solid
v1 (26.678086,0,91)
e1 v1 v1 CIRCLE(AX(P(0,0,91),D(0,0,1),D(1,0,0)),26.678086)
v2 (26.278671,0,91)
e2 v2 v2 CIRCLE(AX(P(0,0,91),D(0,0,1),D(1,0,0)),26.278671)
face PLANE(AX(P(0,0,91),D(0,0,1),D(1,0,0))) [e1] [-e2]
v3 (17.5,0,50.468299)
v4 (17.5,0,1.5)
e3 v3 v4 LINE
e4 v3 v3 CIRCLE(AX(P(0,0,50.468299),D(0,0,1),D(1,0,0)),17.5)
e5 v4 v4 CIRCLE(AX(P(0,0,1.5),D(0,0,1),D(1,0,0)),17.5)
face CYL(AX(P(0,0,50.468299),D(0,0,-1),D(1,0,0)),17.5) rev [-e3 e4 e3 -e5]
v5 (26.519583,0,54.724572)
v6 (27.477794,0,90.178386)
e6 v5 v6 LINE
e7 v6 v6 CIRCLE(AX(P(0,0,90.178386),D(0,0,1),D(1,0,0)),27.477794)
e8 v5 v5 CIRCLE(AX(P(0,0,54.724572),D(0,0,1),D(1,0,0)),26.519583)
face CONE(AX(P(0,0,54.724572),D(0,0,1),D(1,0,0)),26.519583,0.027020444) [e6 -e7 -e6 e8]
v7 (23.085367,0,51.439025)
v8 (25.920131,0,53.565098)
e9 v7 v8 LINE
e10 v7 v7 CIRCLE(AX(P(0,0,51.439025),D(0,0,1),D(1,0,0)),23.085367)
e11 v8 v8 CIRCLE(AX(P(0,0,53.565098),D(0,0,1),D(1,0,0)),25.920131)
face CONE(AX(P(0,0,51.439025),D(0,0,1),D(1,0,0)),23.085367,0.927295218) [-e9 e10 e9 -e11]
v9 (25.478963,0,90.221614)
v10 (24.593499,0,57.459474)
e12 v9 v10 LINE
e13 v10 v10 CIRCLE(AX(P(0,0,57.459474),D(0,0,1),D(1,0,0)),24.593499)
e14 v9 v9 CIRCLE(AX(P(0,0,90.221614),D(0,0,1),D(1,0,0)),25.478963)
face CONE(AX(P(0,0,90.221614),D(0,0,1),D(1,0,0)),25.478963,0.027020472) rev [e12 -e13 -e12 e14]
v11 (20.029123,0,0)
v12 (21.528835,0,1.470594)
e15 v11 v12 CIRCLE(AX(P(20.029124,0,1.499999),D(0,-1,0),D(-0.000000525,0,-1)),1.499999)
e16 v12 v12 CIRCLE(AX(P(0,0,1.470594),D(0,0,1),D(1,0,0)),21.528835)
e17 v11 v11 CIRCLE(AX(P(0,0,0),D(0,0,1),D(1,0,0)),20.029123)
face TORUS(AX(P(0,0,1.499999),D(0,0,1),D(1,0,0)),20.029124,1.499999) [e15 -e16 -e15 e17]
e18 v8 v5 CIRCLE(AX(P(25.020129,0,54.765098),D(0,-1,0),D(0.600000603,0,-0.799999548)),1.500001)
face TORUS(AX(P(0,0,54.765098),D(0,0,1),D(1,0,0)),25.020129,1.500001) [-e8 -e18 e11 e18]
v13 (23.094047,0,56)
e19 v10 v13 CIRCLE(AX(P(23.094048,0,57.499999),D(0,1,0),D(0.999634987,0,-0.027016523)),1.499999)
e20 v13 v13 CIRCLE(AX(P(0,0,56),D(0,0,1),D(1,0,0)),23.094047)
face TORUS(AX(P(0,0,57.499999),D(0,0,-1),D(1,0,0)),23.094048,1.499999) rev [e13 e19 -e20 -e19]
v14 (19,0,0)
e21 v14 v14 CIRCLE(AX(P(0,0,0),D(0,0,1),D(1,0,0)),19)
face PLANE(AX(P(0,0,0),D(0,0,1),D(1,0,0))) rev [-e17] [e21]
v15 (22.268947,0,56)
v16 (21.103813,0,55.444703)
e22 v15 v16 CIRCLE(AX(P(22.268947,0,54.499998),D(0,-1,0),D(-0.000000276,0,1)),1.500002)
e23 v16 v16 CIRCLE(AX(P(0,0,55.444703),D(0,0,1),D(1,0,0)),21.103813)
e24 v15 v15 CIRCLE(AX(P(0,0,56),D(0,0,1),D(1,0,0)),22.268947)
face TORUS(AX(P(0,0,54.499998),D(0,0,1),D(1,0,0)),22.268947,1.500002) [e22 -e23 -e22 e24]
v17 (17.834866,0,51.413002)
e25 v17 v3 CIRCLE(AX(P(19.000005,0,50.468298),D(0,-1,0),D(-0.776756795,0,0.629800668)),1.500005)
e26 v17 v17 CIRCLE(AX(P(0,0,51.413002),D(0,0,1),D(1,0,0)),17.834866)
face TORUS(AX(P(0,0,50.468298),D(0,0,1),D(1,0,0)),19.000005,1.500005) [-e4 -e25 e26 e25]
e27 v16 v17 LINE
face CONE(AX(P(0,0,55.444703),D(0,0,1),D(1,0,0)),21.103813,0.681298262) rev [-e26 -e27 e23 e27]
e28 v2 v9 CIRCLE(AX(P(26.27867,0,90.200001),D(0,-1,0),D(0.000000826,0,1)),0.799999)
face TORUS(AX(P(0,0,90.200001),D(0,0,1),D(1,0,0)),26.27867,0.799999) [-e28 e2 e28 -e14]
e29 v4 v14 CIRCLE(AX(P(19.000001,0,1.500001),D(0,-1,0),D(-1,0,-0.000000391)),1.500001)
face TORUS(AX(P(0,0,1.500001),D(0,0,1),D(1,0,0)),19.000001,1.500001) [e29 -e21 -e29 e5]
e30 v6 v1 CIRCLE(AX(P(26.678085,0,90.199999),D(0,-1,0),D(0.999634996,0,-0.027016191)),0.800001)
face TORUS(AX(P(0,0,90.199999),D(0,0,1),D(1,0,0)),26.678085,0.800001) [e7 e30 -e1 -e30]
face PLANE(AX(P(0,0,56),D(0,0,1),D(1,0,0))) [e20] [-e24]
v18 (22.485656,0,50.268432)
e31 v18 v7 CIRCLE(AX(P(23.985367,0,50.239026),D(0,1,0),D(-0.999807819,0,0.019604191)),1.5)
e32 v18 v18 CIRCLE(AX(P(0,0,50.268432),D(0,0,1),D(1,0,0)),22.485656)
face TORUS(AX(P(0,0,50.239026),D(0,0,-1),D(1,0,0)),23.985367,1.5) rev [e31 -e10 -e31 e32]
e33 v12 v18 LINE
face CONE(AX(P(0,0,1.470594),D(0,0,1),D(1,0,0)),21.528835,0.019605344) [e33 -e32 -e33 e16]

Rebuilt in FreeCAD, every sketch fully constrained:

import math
import FreeCAD as App
import Part
import Sketcher

V = App.Vector
Q = App.Units.Quantity

doc = App.newDocument("Part")
params = doc.addObject("Spreadsheet::Sheet", "Params")
for row, (alias, value) in enumerate([
    ("sketch1_radius", "0.800001 mm"),
    ("sketch1_radius2", "0.799999 mm"),
    ("sketch1_radius3", "1.499999 mm"),
    ("sketch1_radius4", "1.500002 mm"),
    ("sketch1_radius5", "1.500001 mm"),
    ("revolution_angle", "360 deg"),
], start=1):
    params.set(f"A{row}", alias)
    params.set(f"B{row}", "=" + value)
    params.setAlias(f"B{row}", alias)

body = doc.addObject("PartDesign::Body", "Body")

# Sketch on XZ plane
sketch1 = doc.addObject("Sketcher::SketchObject", "Sketch")
body.addObject(sketch1)
sketch1.AttachmentSupport = (doc.XZ_Plane, [""])
sketch1.MapMode = "FlatFace"
sketch1.addGeometry(Part.LineSegment(V(26.519583, 54.724572, 0), V(27.477794, 90.178386, 0)), False)
sketch1.addGeometry(Part.ArcOfCircle(Part.Circle(V(26.678085, 90.199999, 0), V(0, 0, 1), 0.800001), math.radians(-1.548102), math.radians(89.999927)), False)
sketch1.addGeometry(Part.LineSegment(V(26.678086, 91, 0), V(26.278671, 91, 0)), False)
sketch1.addGeometry(Part.ArcOfCircle(Part.Circle(V(26.27867, 90.200001, 0), V(0, 0, 1), 0.799999), math.radians(89.999953), math.radians(178.451868)), False)
sketch1.addGeometry(Part.LineSegment(V(25.478963, 90.221614, 0), V(24.593499, 57.459474, 0)), False)
sketch1.addGeometry(Part.ArcOfCircle(Part.Circle(V(23.094048, 57.499999, 0), V(0, 0, 1), 1.499999), math.radians(-90.000029), math.radians(-1.548121)), False)
sketch1.addGeometry(Part.LineSegment(V(23.094047, 56, 0), V(22.268947, 56, 0)), False)
sketch1.addGeometry(Part.ArcOfCircle(Part.Circle(V(22.268947, 54.499998, 0), V(0, 0, 1), 1.500002), math.radians(90.000016), math.radians(140.964452)), False)
sketch1.addGeometry(Part.LineSegment(V(21.103813, 55.444703, 0), V(17.834866, 51.413002, 0)), False)
sketch1.addGeometry(Part.ArcOfCircle(Part.Circle(V(19.000005, 50.468298, 0), V(0, 0, 1), 1.500005), math.radians(140.964582), math.radians(179.999948)), False)
sketch1.addGeometry(Part.LineSegment(V(17.5, 50.468299, 0), V(17.5, 1.5, 0)), False)
sketch1.addGeometry(Part.ArcOfCircle(Part.Circle(V(19.000001, 1.500001, 0), V(0, 0, 1), 1.500001), math.radians(-179.999978), math.radians(-90.000022)), False)
sketch1.addGeometry(Part.LineSegment(V(19, 0, 0), V(20.029123, 0, 0)), False)
sketch1.addGeometry(Part.ArcOfCircle(Part.Circle(V(20.029124, 1.499999, 0), V(0, 0, 1), 1.499999), math.radians(-90.00003), math.radians(-1.123278)), False)
sketch1.addGeometry(Part.LineSegment(V(21.528835, 1.470594, 0), V(22.485656, 50.268432, 0)), False)
sketch1.addGeometry(Part.ArcOfCircle(Part.Circle(V(23.985367, 50.239026, 0), V(0, 0, 1), 1.5), math.radians(126.869926), math.radians(178.876691)), False)
sketch1.addGeometry(Part.LineSegment(V(23.085367, 51.439025, 0), V(25.920131, 53.565098, 0)), False)
sketch1.addGeometry(Part.ArcOfCircle(Part.Circle(V(25.020129, 54.765098, 0), V(0, 0, 1), 1.500001), math.radians(-53.130059), math.radians(-1.548176)), False)
sketch1.addConstraint(Sketcher.Constraint("Coincident", 0, 2, 1, 1))
sketch1.addConstraint(Sketcher.Constraint("Coincident", 1, 2, 2, 1))
sketch1.addConstraint(Sketcher.Constraint("Coincident", 2, 2, 3, 1))
sketch1.addConstraint(Sketcher.Constraint("Coincident", 3, 2, 4, 1))
sketch1.addConstraint(Sketcher.Constraint("Coincident", 4, 2, 5, 2))
sketch1.addConstraint(Sketcher.Constraint("Coincident", 5, 1, 6, 1))
sketch1.addConstraint(Sketcher.Constraint("Coincident", 6, 2, 7, 1))
sketch1.addConstraint(Sketcher.Constraint("Coincident", 7, 2, 8, 1))
sketch1.addConstraint(Sketcher.Constraint("Coincident", 8, 2, 9, 1))
sketch1.addConstraint(Sketcher.Constraint("Coincident", 9, 2, 10, 1))
sketch1.addConstraint(Sketcher.Constraint("Coincident", 10, 2, 11, 1))
sketch1.addConstraint(Sketcher.Constraint("Coincident", 11, 2, 12, 1))
sketch1.addConstraint(Sketcher.Constraint("Coincident", 12, 2, 13, 1))
sketch1.addConstraint(Sketcher.Constraint("Coincident", 13, 2, 14, 1))
sketch1.addConstraint(Sketcher.Constraint("Coincident", 14, 2, 15, 2))
sketch1.addConstraint(Sketcher.Constraint("Coincident", 15, 1, 16, 1))
sketch1.addConstraint(Sketcher.Constraint("Coincident", 16, 2, 17, 1))
sketch1.addConstraint(Sketcher.Constraint("Coincident", 17, 2, 0, 1))
sketch1.addConstraint(Sketcher.Constraint("Horizontal", 2))
sketch1.addConstraint(Sketcher.Constraint("Horizontal", 6))
sketch1.addConstraint(Sketcher.Constraint("Vertical", 10))
sketch1.addConstraint(Sketcher.Constraint("Horizontal", 12))
sketch1.addConstraint(Sketcher.Constraint("PointOnObject", 11, 2, -1))
sketch1.addConstraint(Sketcher.Constraint("Radius", 1, Q("0.800001 mm")))
sketch1.addConstraint(Sketcher.Constraint("Radius", 3, Q("0.799999 mm")))
sketch1.addConstraint(Sketcher.Constraint("Radius", 5, Q("1.499999 mm")))
sketch1.addConstraint(Sketcher.Constraint("Radius", 7, Q("1.500002 mm")))
sketch1.addConstraint(Sketcher.Constraint("Radius", 11, Q("1.500001 mm")))
sketch1.addConstraint(Sketcher.Constraint("Radius", 13, Q("1.499999 mm")))
sketch1.addConstraint(Sketcher.Constraint("Radius", 15, Q("1.5 mm")))
sketch1.addConstraint(Sketcher.Constraint("Radius", 17, Q("1.500001 mm")))
sketch1.addConstraint(Sketcher.Constraint("DistanceX", -1, 1, 11, 3, Q("19.000001 mm")))
sketch1.addConstraint(Sketcher.Constraint("DistanceY", -1, 1, 1, 2, Q("91 mm")))
sketch1.addConstraint(Sketcher.Constraint("DistanceY", -1, 1, 5, 1, Q("56 mm")))
sketch1.addConstraint(Sketcher.Constraint("DistanceX", -1, 1, 11, 2, Q("19 mm")))
sketch1.addConstraint(Sketcher.Constraint("DistanceY", -1, 1, 10, 2, Q("1.5 mm")))
sketch1.addConstraint(Sketcher.Constraint("DistanceX", 15, 1, 15, 3, Q("0.9 mm")))
sketch1.addConstraint(Sketcher.Constraint("DistanceX", 17, 3, 16, 2, Q("0.900002 mm")))
sketch1.addConstraint(Sketcher.Constraint("DistanceX", 6, 2, 6, 1, Q("0.8251 mm")))
sketch1.addConstraint(Sketcher.Constraint("DistanceY", 10, 2, 10, 1, Q("48.968299 mm")))
sketch1.addConstraint(Sketcher.Constraint("Radius", 9, Q("1.500005 mm")))
sketch1.addConstraint(Sketcher.Constraint("DistanceY", 8, 2, 6, 2, Q("4.586998 mm")))
sketch1.addConstraint(Sketcher.Constraint("DistanceY", -1, 1, 17, 3, Q("54.765098 mm")))
sketch1.addConstraint(Sketcher.Constraint("DistanceX", -1, 1, 4, 2, Q("24.593499 mm")))
sketch1.addConstraint(Sketcher.Constraint("DistanceX", 7, 3, 5, 3, Q("0.8251 mm")))
sketch1.addConstraint(Sketcher.Constraint("DistanceY", 9, 3, 7, 3, Q("4.031701 mm")))
sketch1.addConstraint(Sketcher.Constraint("DistanceX", 7, 3, 5, 1, Q("0.8251 mm")))
sketch1.addConstraint(Sketcher.Constraint("DistanceY", 8, 2, 7, 2, Q("4.031701 mm")))
sketch1.addConstraint(Sketcher.Constraint("DistanceX", 8, 2, 15, 3, Q("6.150501 mm")))
sketch1.addConstraint(Sketcher.Constraint("Distance", 0, Q("35.46676 mm")))
sketch1.addConstraint(Sketcher.Constraint("DistanceX", 2, 2, 2, 1, Q("0.399415 mm")))
sketch1.addConstraint(Sketcher.Constraint("DistanceX", 12, 1, 12, 2, Q("1.029123 mm")))
sketch1.addConstraint(Sketcher.Constraint("DistanceX", -1, 1, 3, 3, Q("26.27867 mm")))
sketch1.addConstraint(Sketcher.Constraint("DistanceX", -1, 1, 17, 3, Q("25.020129 mm")))
sketch1.addConstraint(Sketcher.Constraint("DistanceX", -1, 1, 2, 2, Q("26.278671 mm")))
sketch1.addConstraint(Sketcher.Constraint("DistanceY", -1, 1, 14, 2, Q("50.268432 mm")))
sketch1.addConstraint(Sketcher.Constraint("DistanceY", -1, 1, 17, 2, Q("54.724572 mm")))
sketch1.addConstraint(Sketcher.Constraint("DistanceX", 9, 3, 1, 3, Q("7.67808 mm")))
sketch1.addConstraint(Sketcher.Constraint("DistanceX", 9, 3, 13, 3, Q("1.029118 mm")))
sketch1.addConstraint(Sketcher.Constraint("DistanceX", 7, 3, 15, 3, Q("1.71642 mm")))
sketch1.addConstraint(Sketcher.Constraint("DistanceY", 15, 3, 9, 3, Q("0.229272 mm")))
sketch1.addConstraint(Sketcher.Constraint("DistanceX", 3, 2, 1, 3, Q("1.199122 mm")))
sketch1.addConstraint(Sketcher.Constraint("DistanceX", 13, 3, 13, 2, Q("1.499711 mm")))
sketch1.setExpression("Constraints[23]", "Params.sketch1_radius")
sketch1.setExpression("Constraints[24]", "Params.sketch1_radius2")
sketch1.setExpression("Constraints[25]", "Params.sketch1_radius3")
sketch1.setExpression("Constraints[26]", "Params.sketch1_radius4")
sketch1.setExpression("Constraints[27]", "Params.sketch1_radius5")
revolution = doc.addObject("PartDesign::Revolution", "Revolution")
body.addObject(revolution)
revolution.Profile = sketch1
revolution.ReferenceAxis = (sketch1, ["V_Axis"])
revolution.setExpression("Angle", "Params.revolution_angle")

doc.recompute()
